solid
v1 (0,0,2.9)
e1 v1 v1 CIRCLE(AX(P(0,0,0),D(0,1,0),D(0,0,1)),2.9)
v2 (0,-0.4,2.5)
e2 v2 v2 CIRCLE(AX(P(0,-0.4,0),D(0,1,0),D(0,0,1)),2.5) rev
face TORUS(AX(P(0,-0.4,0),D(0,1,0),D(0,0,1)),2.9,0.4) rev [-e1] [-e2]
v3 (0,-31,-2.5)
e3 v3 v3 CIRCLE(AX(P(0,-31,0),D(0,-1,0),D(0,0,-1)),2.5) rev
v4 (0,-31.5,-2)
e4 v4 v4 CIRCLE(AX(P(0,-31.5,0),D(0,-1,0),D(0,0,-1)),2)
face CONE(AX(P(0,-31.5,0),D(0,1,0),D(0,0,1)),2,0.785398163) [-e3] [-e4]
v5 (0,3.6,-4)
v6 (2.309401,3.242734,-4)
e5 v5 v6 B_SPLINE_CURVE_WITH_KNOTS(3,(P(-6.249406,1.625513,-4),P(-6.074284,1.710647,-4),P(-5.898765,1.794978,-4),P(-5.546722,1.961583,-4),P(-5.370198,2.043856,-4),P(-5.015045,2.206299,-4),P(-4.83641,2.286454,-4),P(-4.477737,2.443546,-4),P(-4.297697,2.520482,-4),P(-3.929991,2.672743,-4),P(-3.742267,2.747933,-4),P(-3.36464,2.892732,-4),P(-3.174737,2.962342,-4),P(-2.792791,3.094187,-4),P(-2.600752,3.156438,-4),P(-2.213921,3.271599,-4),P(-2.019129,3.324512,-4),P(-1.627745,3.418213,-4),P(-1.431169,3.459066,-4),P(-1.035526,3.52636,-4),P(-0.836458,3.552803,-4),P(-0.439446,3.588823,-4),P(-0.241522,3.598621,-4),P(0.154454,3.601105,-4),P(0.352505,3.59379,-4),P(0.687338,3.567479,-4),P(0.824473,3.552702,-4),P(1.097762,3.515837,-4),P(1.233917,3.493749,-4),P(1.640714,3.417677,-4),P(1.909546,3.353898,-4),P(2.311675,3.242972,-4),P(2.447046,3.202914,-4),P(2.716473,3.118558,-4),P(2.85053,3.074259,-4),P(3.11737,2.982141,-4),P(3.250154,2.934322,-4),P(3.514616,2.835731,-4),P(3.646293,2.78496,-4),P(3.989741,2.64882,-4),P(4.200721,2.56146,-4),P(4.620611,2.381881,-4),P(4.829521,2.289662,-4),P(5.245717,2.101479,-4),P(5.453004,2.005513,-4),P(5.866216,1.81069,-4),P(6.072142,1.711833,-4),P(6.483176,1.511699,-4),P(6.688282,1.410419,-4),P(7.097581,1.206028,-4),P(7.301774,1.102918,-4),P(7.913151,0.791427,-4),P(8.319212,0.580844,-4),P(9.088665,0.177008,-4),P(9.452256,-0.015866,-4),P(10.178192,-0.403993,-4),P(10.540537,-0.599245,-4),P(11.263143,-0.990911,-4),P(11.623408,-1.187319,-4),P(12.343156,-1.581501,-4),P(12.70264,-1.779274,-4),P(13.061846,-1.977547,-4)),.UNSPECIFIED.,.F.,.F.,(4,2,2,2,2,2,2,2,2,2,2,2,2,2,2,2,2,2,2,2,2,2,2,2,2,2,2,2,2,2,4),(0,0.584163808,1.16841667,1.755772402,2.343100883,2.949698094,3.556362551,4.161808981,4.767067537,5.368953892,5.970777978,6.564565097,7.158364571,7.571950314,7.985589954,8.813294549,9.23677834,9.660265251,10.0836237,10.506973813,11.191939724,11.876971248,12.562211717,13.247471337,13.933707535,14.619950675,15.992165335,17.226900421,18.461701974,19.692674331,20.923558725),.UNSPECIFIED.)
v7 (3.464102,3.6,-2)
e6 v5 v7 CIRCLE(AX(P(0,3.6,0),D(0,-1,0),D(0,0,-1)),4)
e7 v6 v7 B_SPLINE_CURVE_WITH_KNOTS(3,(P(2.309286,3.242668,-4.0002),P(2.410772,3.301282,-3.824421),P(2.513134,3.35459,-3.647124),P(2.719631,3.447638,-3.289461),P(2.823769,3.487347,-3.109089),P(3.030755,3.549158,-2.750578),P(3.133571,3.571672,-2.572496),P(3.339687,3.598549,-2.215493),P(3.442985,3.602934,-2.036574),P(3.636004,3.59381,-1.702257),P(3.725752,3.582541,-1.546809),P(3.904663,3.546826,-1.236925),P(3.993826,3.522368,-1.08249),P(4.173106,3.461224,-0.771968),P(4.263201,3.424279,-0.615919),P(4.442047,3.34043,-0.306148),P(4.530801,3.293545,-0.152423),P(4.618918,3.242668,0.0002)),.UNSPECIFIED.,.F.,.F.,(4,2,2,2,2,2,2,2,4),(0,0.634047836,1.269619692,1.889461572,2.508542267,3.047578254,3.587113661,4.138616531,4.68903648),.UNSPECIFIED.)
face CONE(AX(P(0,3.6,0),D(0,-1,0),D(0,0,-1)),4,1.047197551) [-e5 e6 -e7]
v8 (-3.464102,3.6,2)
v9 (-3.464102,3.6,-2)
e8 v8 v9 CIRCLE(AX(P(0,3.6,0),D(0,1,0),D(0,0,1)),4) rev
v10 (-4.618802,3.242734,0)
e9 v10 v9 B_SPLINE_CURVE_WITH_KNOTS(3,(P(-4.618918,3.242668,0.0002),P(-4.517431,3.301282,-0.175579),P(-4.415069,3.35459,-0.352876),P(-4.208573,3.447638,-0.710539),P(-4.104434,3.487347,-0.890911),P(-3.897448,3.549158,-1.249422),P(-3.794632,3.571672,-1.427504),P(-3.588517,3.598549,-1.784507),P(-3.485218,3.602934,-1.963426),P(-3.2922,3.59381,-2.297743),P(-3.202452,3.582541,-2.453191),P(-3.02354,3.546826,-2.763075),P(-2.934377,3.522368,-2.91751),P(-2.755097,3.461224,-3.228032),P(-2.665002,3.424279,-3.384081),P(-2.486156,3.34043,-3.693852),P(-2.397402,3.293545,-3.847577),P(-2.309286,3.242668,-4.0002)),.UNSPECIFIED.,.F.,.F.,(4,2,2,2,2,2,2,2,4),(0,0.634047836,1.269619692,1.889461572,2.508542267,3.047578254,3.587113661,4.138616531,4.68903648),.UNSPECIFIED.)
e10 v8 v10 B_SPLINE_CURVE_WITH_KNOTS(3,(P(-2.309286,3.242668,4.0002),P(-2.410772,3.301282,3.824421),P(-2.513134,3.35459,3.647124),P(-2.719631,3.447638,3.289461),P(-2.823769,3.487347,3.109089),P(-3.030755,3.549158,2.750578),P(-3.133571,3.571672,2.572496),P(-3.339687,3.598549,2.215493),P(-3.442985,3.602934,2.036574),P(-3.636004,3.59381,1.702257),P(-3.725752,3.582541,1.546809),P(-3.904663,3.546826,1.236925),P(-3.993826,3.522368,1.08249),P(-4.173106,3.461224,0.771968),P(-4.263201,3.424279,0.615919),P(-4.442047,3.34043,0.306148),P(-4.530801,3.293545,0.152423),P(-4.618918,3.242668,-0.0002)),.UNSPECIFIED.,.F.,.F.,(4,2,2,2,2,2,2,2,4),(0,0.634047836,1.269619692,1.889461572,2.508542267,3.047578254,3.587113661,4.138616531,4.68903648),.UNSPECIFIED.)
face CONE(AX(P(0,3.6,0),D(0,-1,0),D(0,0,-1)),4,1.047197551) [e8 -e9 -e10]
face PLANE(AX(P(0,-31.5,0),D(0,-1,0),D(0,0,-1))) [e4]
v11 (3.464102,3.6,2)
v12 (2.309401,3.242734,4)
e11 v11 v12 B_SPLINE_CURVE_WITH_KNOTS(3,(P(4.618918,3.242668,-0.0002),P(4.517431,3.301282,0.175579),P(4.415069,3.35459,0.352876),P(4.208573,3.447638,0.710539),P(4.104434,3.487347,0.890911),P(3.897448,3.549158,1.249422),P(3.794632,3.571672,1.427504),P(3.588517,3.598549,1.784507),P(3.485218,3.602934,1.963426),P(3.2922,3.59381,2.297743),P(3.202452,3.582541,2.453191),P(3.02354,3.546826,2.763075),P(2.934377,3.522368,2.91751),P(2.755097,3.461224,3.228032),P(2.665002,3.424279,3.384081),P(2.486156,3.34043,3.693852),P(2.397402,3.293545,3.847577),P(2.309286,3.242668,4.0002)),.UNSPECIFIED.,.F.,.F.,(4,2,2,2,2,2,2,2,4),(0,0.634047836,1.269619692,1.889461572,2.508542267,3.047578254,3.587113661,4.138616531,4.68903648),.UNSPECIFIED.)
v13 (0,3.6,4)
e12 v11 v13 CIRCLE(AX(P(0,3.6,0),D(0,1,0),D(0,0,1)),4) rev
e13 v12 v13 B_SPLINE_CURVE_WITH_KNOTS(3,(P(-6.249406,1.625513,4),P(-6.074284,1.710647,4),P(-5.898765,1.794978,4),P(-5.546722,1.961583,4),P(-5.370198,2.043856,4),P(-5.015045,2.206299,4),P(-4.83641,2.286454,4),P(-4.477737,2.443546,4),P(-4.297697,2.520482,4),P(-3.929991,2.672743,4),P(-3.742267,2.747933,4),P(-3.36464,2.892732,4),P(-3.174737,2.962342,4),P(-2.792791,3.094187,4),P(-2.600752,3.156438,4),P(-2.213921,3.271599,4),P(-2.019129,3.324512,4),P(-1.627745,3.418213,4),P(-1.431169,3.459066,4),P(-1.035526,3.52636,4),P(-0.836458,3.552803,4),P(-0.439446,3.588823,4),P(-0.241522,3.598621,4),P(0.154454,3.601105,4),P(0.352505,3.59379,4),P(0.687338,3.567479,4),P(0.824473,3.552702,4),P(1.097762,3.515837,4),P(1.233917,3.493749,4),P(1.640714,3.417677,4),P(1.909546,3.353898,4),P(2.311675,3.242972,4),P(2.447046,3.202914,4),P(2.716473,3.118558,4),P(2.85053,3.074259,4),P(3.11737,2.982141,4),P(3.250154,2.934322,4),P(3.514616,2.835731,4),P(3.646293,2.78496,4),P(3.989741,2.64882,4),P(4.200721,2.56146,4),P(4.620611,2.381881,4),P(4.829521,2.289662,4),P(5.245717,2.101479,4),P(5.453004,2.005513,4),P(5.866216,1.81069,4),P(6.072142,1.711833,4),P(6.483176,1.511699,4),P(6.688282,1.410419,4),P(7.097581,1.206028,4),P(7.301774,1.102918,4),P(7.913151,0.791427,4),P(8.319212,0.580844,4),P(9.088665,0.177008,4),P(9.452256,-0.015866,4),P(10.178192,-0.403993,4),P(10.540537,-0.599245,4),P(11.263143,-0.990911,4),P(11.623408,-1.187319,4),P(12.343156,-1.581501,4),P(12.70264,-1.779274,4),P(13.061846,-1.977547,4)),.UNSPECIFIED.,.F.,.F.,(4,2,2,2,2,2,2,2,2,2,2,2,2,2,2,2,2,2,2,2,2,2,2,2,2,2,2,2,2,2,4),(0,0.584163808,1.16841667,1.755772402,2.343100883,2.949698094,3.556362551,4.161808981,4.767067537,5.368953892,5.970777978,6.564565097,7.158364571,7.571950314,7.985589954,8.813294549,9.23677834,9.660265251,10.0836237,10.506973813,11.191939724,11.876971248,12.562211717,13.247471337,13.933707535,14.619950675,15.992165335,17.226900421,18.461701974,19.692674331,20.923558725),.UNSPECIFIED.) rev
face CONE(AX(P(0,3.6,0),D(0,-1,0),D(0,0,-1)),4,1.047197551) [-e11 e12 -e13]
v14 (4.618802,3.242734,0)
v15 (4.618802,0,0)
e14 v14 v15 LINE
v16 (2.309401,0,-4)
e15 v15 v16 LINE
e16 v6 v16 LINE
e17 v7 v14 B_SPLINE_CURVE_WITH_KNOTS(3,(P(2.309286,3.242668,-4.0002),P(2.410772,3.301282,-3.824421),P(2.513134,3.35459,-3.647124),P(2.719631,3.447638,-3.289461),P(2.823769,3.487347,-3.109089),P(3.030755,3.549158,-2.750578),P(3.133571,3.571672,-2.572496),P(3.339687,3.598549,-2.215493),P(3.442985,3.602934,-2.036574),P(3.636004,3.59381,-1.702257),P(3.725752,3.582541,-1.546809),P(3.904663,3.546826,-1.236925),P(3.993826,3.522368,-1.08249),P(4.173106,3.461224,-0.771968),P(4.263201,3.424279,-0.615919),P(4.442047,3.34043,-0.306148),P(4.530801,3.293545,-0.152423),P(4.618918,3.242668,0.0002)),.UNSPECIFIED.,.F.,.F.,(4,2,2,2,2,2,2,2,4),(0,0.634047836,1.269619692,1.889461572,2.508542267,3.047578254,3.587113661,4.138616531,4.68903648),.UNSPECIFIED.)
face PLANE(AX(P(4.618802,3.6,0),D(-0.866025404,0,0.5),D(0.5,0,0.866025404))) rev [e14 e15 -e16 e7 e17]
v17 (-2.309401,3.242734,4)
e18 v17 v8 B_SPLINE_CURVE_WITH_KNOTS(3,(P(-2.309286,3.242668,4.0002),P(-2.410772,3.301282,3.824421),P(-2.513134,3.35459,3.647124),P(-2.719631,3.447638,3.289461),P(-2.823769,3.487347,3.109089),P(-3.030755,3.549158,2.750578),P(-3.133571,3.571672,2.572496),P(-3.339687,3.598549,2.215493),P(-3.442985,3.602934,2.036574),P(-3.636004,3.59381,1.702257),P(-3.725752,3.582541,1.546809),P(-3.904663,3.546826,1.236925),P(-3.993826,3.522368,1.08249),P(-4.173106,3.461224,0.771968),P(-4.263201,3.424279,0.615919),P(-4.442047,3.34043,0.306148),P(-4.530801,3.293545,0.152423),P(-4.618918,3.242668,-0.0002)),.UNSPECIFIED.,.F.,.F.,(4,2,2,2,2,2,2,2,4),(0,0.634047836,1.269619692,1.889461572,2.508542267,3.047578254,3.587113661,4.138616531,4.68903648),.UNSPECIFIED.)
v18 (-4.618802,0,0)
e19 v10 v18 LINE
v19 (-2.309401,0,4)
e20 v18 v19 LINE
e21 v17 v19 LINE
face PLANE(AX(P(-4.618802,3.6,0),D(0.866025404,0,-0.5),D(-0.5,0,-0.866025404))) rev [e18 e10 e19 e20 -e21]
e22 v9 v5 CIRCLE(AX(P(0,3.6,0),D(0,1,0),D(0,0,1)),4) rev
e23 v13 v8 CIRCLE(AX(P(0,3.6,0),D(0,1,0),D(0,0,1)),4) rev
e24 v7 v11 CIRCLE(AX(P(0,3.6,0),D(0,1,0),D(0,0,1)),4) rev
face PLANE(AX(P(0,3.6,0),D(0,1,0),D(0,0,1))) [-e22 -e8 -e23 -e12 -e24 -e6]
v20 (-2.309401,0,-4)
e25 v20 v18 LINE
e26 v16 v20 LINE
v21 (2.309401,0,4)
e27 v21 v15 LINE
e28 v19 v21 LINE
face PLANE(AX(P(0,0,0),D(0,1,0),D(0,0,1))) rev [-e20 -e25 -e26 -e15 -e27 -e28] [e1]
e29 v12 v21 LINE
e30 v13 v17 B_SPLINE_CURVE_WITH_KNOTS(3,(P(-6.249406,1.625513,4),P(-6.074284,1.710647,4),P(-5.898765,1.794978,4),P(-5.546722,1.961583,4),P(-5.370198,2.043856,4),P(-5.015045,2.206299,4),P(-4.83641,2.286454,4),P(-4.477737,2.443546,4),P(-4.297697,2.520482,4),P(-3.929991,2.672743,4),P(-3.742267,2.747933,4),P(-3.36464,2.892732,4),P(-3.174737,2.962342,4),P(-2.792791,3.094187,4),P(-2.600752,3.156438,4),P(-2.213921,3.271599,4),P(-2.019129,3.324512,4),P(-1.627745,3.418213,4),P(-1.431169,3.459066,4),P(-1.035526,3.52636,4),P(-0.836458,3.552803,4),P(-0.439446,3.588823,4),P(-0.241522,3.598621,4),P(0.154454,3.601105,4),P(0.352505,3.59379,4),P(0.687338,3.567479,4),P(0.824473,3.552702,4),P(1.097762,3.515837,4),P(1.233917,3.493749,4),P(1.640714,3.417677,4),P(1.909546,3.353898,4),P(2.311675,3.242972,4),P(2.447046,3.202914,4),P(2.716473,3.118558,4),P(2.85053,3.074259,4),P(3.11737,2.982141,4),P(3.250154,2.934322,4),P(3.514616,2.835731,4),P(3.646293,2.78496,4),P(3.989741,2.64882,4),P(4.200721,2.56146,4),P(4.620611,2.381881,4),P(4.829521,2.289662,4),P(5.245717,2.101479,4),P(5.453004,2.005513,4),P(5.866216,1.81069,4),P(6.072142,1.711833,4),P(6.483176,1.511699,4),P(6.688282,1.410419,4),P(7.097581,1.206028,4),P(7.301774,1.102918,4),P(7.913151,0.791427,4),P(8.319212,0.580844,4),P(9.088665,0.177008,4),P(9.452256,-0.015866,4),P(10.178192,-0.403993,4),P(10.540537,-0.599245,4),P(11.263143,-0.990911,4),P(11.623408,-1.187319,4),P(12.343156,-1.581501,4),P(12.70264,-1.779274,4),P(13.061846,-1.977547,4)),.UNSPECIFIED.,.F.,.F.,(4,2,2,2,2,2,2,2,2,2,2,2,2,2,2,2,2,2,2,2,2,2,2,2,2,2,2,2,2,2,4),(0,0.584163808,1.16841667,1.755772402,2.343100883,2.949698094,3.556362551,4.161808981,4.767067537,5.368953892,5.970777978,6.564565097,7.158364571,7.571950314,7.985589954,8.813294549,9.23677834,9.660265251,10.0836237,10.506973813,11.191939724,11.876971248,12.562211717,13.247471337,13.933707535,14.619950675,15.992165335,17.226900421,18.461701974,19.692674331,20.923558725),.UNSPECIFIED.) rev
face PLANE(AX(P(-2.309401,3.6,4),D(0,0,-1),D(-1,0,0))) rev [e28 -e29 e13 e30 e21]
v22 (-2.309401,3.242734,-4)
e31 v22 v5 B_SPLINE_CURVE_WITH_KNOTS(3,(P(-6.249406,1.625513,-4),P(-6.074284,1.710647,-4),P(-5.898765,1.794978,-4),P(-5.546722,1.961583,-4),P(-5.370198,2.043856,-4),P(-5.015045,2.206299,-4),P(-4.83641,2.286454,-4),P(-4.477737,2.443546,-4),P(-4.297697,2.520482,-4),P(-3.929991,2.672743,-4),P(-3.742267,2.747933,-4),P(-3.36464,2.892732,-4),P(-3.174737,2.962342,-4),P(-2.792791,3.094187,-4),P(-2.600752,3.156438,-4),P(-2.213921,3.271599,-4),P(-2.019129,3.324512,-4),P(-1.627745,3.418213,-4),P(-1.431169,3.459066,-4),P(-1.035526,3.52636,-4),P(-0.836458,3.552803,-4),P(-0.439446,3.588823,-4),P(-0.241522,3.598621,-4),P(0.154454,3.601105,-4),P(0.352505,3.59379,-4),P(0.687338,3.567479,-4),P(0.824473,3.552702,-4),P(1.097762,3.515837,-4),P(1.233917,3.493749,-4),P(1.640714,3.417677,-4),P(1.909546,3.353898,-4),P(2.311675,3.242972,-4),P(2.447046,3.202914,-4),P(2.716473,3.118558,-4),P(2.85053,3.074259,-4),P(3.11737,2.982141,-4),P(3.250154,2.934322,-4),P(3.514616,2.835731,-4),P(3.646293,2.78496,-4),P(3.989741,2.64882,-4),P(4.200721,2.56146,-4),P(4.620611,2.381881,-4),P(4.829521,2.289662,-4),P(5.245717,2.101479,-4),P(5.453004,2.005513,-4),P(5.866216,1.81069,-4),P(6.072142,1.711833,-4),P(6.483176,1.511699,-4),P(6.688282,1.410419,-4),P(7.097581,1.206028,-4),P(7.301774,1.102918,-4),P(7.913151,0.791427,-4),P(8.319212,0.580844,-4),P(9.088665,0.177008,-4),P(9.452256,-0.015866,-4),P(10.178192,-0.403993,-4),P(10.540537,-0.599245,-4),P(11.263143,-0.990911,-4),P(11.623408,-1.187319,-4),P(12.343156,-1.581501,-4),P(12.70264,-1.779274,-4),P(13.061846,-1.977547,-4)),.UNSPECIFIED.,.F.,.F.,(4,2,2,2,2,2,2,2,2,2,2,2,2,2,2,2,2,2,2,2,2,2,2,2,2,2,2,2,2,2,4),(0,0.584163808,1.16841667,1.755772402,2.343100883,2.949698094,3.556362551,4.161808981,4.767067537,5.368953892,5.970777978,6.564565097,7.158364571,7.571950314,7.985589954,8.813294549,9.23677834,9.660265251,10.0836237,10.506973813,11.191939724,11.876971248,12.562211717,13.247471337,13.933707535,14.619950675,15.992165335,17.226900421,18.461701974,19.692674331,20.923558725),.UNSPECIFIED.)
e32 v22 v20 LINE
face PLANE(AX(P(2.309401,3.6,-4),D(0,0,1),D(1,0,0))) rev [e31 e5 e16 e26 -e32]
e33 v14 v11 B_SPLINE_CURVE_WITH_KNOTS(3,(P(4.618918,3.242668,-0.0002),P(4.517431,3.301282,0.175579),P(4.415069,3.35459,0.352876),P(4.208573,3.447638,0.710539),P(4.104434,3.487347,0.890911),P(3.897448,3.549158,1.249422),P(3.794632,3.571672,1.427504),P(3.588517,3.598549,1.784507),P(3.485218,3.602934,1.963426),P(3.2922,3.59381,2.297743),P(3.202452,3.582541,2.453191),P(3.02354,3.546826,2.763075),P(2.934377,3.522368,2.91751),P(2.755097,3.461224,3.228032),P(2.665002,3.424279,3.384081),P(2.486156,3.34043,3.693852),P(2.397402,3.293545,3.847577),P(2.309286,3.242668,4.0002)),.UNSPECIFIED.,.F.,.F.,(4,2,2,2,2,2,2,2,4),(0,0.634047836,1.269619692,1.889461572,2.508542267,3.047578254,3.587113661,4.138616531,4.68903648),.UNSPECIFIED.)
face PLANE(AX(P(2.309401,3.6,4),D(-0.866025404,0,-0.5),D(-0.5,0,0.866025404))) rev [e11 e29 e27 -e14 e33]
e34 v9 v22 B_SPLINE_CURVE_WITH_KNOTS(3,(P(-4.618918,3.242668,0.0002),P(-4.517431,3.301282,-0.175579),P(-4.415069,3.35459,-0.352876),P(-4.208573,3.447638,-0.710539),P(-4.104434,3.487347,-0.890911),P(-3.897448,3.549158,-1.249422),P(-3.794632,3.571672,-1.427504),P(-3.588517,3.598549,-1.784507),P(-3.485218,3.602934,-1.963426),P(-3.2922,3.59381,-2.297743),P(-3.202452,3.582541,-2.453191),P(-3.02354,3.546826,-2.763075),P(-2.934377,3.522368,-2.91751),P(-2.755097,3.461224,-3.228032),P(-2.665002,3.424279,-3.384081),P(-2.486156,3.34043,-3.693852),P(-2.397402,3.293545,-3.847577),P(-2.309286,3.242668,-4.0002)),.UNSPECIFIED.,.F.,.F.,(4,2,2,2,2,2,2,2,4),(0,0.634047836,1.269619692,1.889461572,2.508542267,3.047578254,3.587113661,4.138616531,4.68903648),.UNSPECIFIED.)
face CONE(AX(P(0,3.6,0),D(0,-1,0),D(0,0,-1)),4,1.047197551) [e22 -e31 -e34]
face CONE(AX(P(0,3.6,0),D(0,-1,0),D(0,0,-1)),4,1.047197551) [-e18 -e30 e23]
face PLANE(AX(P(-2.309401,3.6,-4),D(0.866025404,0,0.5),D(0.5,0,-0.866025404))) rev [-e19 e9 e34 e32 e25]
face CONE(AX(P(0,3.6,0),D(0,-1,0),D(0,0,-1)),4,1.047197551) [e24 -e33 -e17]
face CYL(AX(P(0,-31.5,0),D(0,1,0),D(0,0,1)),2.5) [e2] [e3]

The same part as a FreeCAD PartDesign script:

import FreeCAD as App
import Part
import Sketcher
from FreeCAD import Vector
Q = App.Units.Quantity


def edges_at(feature, points):
    """Names of the edges that pass closest to the given points."""
    edges = feature.Shape.Edges
    near = lambda p: min(range(len(edges)), key=lambda i: edges[i].distToShape(Part.Vertex(*p))[0])
    return sorted({f"Edge{near(p) + 1}" for p in points})

doc = App.newDocument("Part")
body = doc.addObject("PartDesign::Body", "Body")

# Sketch on XZ plane
sketch1 = body.newObject("Sketcher::SketchObject", "Sketch")
sketch1.AttachmentSupport = (doc.getObject("XZ_Plane"), [""])
sketch1.MapMode = "FlatFace"
sketch1.addGeometry([
    Part.LineSegment(Vector(-2.3, 4, 0), Vector(2.3, 4, 0)),  # 0
    Part.LineSegment(Vector(2.3, 4, 0), Vector(4.6, 0, 0)),  # 1
    Part.LineSegment(Vector(4.6, 0, 0), Vector(2.3, -4, 0)),  # 2
    Part.LineSegment(Vector(2.3, -4, 0), Vector(-2.3, -4, 0)),  # 3
    Part.LineSegment(Vector(-2.3, -4, 0), Vector(-4.6, 0, 0)),  # 4
    Part.LineSegment(Vector(-4.6, 0, 0), Vector(-2.3, 4, 0)),  # 5
], False)
sketch1.addConstraint([
    Sketcher.Constraint("Coincident", 0, 2, 1, 1),
    Sketcher.Constraint("Coincident", 1, 2, 2, 1),
    Sketcher.Constraint("Coincident", 2, 2, 3, 1),
    Sketcher.Constraint("Coincident", 3, 2, 4, 1),
    Sketcher.Constraint("Coincident", 4, 2, 5, 1),
    Sketcher.Constraint("Coincident", 5, 2, 0, 1),
    Sketcher.Constraint("Horizontal", 0),
    Sketcher.Constraint("Horizontal", 3),
    Sketcher.Constraint("Symmetric", 0, 2, 3, 2, -1, 1),
    Sketcher.Constraint("Symmetric", 1, 2, 4, 2, -1, 1),
    Sketcher.Constraint("PointOnObject", 1, 2, -1),
    Sketcher.Constraint("Parallel", 2, 5),
    Sketcher.Constraint("Vertical", 0, 2, 2, 2),
    Sketcher.Constraint("Angle", 1, Q("-60 deg")),
    Sketcher.Constraint("DistanceY", -1, 1, 0, 2, Q("4 mm")),
    Sketcher.Constraint("DistanceX", -1, 1, 0, 2, Q("2.309401 mm")),
])
pad1 = body.newObject("PartDesign::Pad", "Pad")
pad1.Profile = sketch1
pad1.Length = 3.6
pad1.Reversed = True

# Sketch on YZ plane
sketch2 = body.newObject("Sketcher::SketchObject", "Sketch001")
sketch2.AttachmentSupport = (doc.getObject("YZ_Plane"), [""])
sketch2.MapMode = "FlatFace"
sketch2.addGeometry([
    Part.LineSegment(Vector(3.6, -4, 0), Vector(1.1, -8.3, 0)),
    Part.LineSegment(Vector(1.1, -8.3, 0), Vector(3.6, -8.3, 0)),
    Part.LineSegment(Vector(3.6, -8.3, 0), Vector(3.6, -4, 0)),
], False)
sketch2.addConstraint([
    Sketcher.Constraint("Coincident", 0, 2, 1, 1),
    Sketcher.Constraint("Coincident", 1, 2, 2, 1),
    Sketcher.Constraint("Coincident", 2, 2, 0, 1),
    Sketcher.Constraint("Horizontal", 1),
    Sketcher.Constraint("Vertical", 2),
    Sketcher.Constraint("Angle", 0, Q("-120 deg")),
    Sketcher.Constraint("DistanceY", 2, 2, -1, 1, Q("4 mm")),
    Sketcher.Constraint("DistanceX", -1, 1, 1, 2, Q("3.6 mm")),
    Sketcher.Constraint("DistanceX", 1, 1, 1, 2, Q("2.497747 mm")),
])
groove = body.newObject("PartDesign::Groove", "Groove")
groove.Profile = sketch2
groove.ReferenceAxis = (sketch2, ["H_Axis"])
groove.Angle = 360

# Sketch on XZ plane
sketch3 = body.newObject("Sketcher::SketchObject", "Sketch002")
sketch3.AttachmentSupport = (doc.getObject("XZ_Plane"), [""])
sketch3.MapMode = "FlatFace"
sketch3.addGeometry(Part.Circle(Vector(0, 0, 0), Vector(0, 0, 1), 2.5), False)
sketch3.addConstraint([
    Sketcher.Constraint("Coincident", 0, 3, -1, 1),
    Sketcher.Constraint("Diameter", 0, Q("5 mm")),
])
pad2 = body.newObject("PartDesign::Pad", "Pad001")
pad2.Profile = sketch3
pad2.Length = 31.5
doc.recompute()

chamfer = body.newObject("PartDesign::Chamfer", "Chamfer")
chamfer.Base = (pad2, edges_at(pad2, [(-2.5, -31.5, 0)]))
chamfer.Size = 0.5
doc.recompute()

fillet = body.newObject("PartDesign::Fillet", "Fillet")
fillet.Base = (chamfer, edges_at(chamfer, [(-2.5, 0, 0)]))
fillet.Radius = 0.4

doc.recompute()
